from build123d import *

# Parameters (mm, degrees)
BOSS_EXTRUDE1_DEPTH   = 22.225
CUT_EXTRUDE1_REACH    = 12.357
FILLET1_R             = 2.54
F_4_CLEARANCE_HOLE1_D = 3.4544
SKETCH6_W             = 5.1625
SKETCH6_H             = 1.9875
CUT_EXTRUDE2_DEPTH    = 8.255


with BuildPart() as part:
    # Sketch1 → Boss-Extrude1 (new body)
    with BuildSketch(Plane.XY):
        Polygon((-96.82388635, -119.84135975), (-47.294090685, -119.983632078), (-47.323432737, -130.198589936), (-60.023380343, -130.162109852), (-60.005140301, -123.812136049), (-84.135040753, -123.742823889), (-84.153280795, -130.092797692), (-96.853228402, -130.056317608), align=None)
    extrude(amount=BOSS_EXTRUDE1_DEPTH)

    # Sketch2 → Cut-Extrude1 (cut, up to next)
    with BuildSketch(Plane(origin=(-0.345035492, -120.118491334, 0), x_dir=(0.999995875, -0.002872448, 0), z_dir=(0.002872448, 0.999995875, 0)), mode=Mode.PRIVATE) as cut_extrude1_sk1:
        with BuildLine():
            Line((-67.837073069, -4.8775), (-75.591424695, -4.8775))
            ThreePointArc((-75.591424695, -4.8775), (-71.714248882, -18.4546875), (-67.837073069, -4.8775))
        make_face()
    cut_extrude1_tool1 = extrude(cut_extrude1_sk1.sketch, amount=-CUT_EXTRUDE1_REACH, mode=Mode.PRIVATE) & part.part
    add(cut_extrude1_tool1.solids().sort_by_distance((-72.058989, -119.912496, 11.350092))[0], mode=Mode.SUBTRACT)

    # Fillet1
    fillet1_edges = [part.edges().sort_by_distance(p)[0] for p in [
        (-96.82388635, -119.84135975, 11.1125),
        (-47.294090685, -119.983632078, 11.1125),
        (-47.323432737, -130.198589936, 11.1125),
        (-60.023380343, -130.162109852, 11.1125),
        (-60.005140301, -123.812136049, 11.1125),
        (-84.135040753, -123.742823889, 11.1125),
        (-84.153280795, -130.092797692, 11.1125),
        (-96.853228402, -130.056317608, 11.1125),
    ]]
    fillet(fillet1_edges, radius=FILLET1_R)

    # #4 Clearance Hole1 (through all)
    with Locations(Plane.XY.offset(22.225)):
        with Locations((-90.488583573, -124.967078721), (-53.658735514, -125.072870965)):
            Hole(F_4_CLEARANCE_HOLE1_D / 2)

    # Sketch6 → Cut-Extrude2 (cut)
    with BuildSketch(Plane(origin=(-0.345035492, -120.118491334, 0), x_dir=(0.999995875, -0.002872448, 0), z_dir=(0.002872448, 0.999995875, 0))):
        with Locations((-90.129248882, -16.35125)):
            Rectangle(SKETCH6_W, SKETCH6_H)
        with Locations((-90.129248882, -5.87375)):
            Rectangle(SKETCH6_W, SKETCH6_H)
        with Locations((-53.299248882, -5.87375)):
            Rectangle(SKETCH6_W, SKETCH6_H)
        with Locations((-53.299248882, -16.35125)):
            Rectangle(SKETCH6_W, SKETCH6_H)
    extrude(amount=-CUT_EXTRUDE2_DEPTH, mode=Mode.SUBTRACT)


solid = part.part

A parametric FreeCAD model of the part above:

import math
import FreeCAD as App
import Part
import Sketcher
from FreeCAD import Vector
Q = App.Units.Quantity


def edges_at(feature, points):
    """Names of the edges that pass closest to the given points."""
    edges = feature.Shape.Edges
    near = lambda p: min(range(len(edges)), key=lambda i: edges[i].distToShape(Part.Vertex(*p))[0])
    return sorted({f"Edge{near(p) + 1}" for p in points})


def add_polygon(sketch, points):
    """Adds a closed chain of lines whose ends are joined by coincident constraints."""
    first, n = sketch.GeometryCount, len(points)
    for a, b in zip(points, points[1:] + points[:1]):
        sketch.addGeometry(Part.LineSegment(App.Vector(*a, 0), App.Vector(*b, 0)), False)
    for i in range(n):
        sketch.addConstraint(Sketcher.Constraint("Coincident", first + i, 2, first + (i + 1) % n, 1))

doc = App.newDocument("Part")
body = doc.addObject("PartDesign::Body", "Body")

sketch1 = body.newObject("Sketcher::SketchObject", "Sketch")
sketch1.AttachmentSupport = (doc.getObject("XY_Plane"), [""])
sketch1.MapMode = "FlatFace"
add_polygon(sketch1, [(-47, -120), (-97, -120), (-97, -130), (-84, -130), (-84, -124), (-60, -124), (-60, -130), (-47, -130)])
sketch1.addConstraint(Sketcher.Constraint("Perpendicular", 0, 1))
sketch1.addConstraint(Sketcher.Constraint("Perpendicular", 1, 2))
sketch1.addConstraint(Sketcher.Constraint("Perpendicular", 2, 3))
sketch1.addConstraint(Sketcher.Constraint("Perpendicular", 3, 4))
sketch1.addConstraint(Sketcher.Constraint("Perpendicular", 4, 5))
sketch1.addConstraint(Sketcher.Constraint("Perpendicular", 5, 6))
sketch1.addConstraint(Sketcher.Constraint("Perpendicular", 6, 7))
sketch1.addConstraint(Sketcher.Constraint("Equal", 3, 5))
sketch1.addConstraint(Sketcher.Constraint("Equal", 2, 6))
sketch1.addConstraint(Sketcher.Constraint("Distance", 2, Q("0.5 in")))
sketch1.addConstraint(Sketcher.Constraint("Distance", 0, Q("1.95 in")))
sketch1.addConstraint(Sketcher.Constraint("Distance", 3, Q("0.25 in")))
sketch1.addConstraint(Sketcher.Constraint("DistanceY", 2, 2, 0, 2, Q("0.4035999 in")))
sketch1.addConstraint(Sketcher.Constraint("Distance", 1, 10.215))
sketch1.addConstraint(Sketcher.Constraint("DistanceY", 0, 2, -1, 1, 119.84136))
sketch1.addConstraint(Sketcher.Constraint("DistanceX", 1, 2, -1, 1, 96.853228))
pad1 = body.newObject("PartDesign::Pad", "Pad")
pad1.Profile = sketch1
pad1.Length = Q("0.875 in")

sketch2 = body.newObject("Sketcher::SketchObject", "Sketch001")
sketch2.Placement = App.Placement(Vector(-0.345035, -120.118491, 0), App.Rotation(Vector(0.999995875, -0.002872448, 0), Vector(0, 0, -1.000000001), Vector(0.002872448, 0.999995875, 0), "ZXY"))
sketch2.addGeometry(Part.LineSegment(Vector(-68, -5, 0), Vector(-76, -5, 0)), False)
sketch2.addGeometry(Part.ArcOfCircle(Part.Circle(Vector(-72, -11, 0), Vector(0, 0, 1), 7), math.radians(122), math.radians(418)), False)
sketch2.addConstraint(Sketcher.Constraint("Coincident", 0, 1, 1, 2))
sketch2.addConstraint(Sketcher.Constraint("Coincident", 1, 1, 0, 2))
sketch2.addConstraint(Sketcher.Constraint("Horizontal", 0))
sketch2.addConstraint(Sketcher.Constraint("DistanceY", 1, 3, -1, 1, Q("0.4375 in")))
sketch2.addConstraint(Sketcher.Constraint("Radius", 1, 7.342187))
sketch2.addConstraint(Sketcher.Constraint("DistanceX", 0, 2, 0, 1, 7.754352))
sketch2.addConstraint(Sketcher.Constraint("DistanceX", 1, 3, -1, 1, 71.714249))
pocket1 = body.newObject("PartDesign::Pocket", "Pocket")
pocket1.Profile = sketch2
pocket1.Type = "UpToFirst"
doc.recompute()

fillet = body.newObject("PartDesign::Fillet", "Fillet")
fillet.Base = (pocket1, edges_at(pocket1, [
    (-96.824, -119.841, 11.113),
    (-47.294, -119.984, 11.113),
    (-47.323, -130.199, 11.113),
    (-60.023, -130.162, 11.113),
    (-60.005, -123.812, 11.113),
    (-84.135, -123.743, 11.113),
    (-84.153, -130.093, 11.113),
    (-96.853, -130.056, 11.113),
]))
fillet.Radius = Q("0.1 in")

sketch3 = body.newObject("Sketcher::SketchObject", "Sketch002")
sketch3.AttachmentSupport = (doc.getObject("XY_Plane"), [""])
sketch3.MapMode = "FlatFace"
sketch3.AttachmentOffset = App.Placement(Vector(0, 0, 0.875 * 25.4), App.Rotation())
sketch3.addGeometry(Part.Circle(Vector(-90.5, -125, 0), Vector(0, 0, 1), 1.7), False)
sketch3.addGeometry(Part.Circle(Vector(-53.7, -125.1, 0), Vector(0, 0, 1), 1.7), False)
sketch3.addConstraint(Sketcher.Constraint("Equal", 0, 1))
sketch3.addConstraint(Sketcher.Constraint("Diameter", 0, Q("0.136 in")))
sketch3.addConstraint(Sketcher.Constraint("DistanceY", 0, 3, -1, 1, 124.967079))
sketch3.addConstraint(Sketcher.Constraint("DistanceY", 1, 3, -1, 1, 125.072871))
sketch3.addConstraint(Sketcher.Constraint("DistanceX", 0, 3, 1, 3, 36.829848))
sketch3.addConstraint(Sketcher.Constraint("DistanceX", 0, 3, -1, 1, 90.488584))
doc.recompute()
hole = body.newObject("PartDesign::Hole", "Hole")
hole.Profile = sketch3
hole.ThreadType = "None"
hole.Diameter = Q("0.136 in")
hole.DepthType = "ThroughAll"

sketch4 = body.newObject("Sketcher::SketchObject", "Sketch003")
sketch4.Placement = App.Placement(Vector(-0.345035, -120.118491, 0), App.Rotation(Vector(0.999995875, -0.002872448, 0), Vector(0, 0, -1.000000001), Vector(0.002872448, 0.999995875, 0), "ZXY"))
add_polygon(sketch4, [(-92.7, -15.4), (-92.7, -17.3), (-87.5, -17.3), (-87.5, -15.4)])
add_polygon(sketch4, [(-92.7, -4.9), (-92.7, -6.9), (-87.5, -6.9), (-87.5, -4.9)])
add_polygon(sketch4, [(-55.9, -4.9), (-55.9, -6.9), (-50.7, -6.9), (-50.7, -4.9)])
add_polygon(sketch4, [(-55.9, -15.4), (-55.9, -17.3), (-50.7, -17.3), (-50.7, -15.4)])
sketch4.addConstraint(Sketcher.Constraint("Vertical", 0))
sketch4.addConstraint(Sketcher.Constraint("Horizontal", 1))
sketch4.addConstraint(Sketcher.Constraint("Vertical", 2))
sketch4.addConstraint(Sketcher.Constraint("Horizontal", 3))
sketch4.addConstraint(Sketcher.Constraint("Vertical", 4))
sketch4.addConstraint(Sketcher.Constraint("Horizontal", 5))
sketch4.addConstraint(Sketcher.Constraint("Vertical", 6))
sketch4.addConstraint(Sketcher.Constraint("Horizontal", 7))
sketch4.addConstraint(Sketcher.Constraint("Vertical", 8))
sketch4.addConstraint(Sketcher.Constraint("Horizontal", 9))
sketch4.addConstraint(Sketcher.Constraint("Vertical", 10))
sketch4.addConstraint(Sketcher.Constraint("Horizontal", 11))
sketch4.addConstraint(Sketcher.Constraint("Vertical", 12))
sketch4.addConstraint(Sketcher.Constraint("Horizontal", 13))
sketch4.addConstraint(Sketcher.Constraint("Vertical", 14))
sketch4.addConstraint(Sketcher.Constraint("Horizontal", 15))
sketch4.addConstraint(Sketcher.Constraint("Horizontal", 5, 2, 8, 2))
sketch4.addConstraint(Sketcher.Constraint("Horizontal", 7, 2, 10, 2))
sketch4.addConstraint(Sketcher.Constraint("Horizontal", 1, 2, 12, 2))
sketch4.addConstraint(Sketcher.Constraint("Horizontal", 3, 2, 14, 2))
sketch4.addConstraint(Sketcher.Constraint("Vertical", 3, 2, 4, 2))
sketch4.addConstraint(Sketcher.Constraint("Vertical", 2, 2, 5, 2))
sketch4.addConstraint(Sketcher.Constraint("Vertical", 11, 2, 12, 2))
sketch4.addConstraint(Sketcher.Constraint("Vertical", 10, 2, 13, 2))
sketch4.addConstraint(Sketcher.Constraint("Equal", 7, 9))
sketch4.addConstraint(Sketcher.Constraint("Equal", 2, 4))
sketch4.addConstraint(Sketcher.Constraint("DistanceX", 4, 2, 8, 2, Q("1.45 in")))
sketch4.addConstraint(Sketcher.Constraint("DistanceX", 1, 1, 1, 2, 5.1625))
sketch4.addConstraint(Sketcher.Constraint("DistanceY", 0, 2, 0, 1, 1.9875))
sketch4.addConstraint(Sketcher.Constraint("DistanceY", 0, 2, 4, 2, Q("0.4125 in")))
sketch4.addConstraint(Sketcher.Constraint("DistanceX", 0, 2, -1, 1, 92.710499))
sketch4.addConstraint(Sketcher.Constraint("DistanceY", 0, 2, -1, 1, 17.345))
pocket2 = body.newObject("PartDesign::Pocket", "Pocket001")
pocket2.Profile = sketch4
pocket2.Length = Q("0.325 in")

doc.recompute()
